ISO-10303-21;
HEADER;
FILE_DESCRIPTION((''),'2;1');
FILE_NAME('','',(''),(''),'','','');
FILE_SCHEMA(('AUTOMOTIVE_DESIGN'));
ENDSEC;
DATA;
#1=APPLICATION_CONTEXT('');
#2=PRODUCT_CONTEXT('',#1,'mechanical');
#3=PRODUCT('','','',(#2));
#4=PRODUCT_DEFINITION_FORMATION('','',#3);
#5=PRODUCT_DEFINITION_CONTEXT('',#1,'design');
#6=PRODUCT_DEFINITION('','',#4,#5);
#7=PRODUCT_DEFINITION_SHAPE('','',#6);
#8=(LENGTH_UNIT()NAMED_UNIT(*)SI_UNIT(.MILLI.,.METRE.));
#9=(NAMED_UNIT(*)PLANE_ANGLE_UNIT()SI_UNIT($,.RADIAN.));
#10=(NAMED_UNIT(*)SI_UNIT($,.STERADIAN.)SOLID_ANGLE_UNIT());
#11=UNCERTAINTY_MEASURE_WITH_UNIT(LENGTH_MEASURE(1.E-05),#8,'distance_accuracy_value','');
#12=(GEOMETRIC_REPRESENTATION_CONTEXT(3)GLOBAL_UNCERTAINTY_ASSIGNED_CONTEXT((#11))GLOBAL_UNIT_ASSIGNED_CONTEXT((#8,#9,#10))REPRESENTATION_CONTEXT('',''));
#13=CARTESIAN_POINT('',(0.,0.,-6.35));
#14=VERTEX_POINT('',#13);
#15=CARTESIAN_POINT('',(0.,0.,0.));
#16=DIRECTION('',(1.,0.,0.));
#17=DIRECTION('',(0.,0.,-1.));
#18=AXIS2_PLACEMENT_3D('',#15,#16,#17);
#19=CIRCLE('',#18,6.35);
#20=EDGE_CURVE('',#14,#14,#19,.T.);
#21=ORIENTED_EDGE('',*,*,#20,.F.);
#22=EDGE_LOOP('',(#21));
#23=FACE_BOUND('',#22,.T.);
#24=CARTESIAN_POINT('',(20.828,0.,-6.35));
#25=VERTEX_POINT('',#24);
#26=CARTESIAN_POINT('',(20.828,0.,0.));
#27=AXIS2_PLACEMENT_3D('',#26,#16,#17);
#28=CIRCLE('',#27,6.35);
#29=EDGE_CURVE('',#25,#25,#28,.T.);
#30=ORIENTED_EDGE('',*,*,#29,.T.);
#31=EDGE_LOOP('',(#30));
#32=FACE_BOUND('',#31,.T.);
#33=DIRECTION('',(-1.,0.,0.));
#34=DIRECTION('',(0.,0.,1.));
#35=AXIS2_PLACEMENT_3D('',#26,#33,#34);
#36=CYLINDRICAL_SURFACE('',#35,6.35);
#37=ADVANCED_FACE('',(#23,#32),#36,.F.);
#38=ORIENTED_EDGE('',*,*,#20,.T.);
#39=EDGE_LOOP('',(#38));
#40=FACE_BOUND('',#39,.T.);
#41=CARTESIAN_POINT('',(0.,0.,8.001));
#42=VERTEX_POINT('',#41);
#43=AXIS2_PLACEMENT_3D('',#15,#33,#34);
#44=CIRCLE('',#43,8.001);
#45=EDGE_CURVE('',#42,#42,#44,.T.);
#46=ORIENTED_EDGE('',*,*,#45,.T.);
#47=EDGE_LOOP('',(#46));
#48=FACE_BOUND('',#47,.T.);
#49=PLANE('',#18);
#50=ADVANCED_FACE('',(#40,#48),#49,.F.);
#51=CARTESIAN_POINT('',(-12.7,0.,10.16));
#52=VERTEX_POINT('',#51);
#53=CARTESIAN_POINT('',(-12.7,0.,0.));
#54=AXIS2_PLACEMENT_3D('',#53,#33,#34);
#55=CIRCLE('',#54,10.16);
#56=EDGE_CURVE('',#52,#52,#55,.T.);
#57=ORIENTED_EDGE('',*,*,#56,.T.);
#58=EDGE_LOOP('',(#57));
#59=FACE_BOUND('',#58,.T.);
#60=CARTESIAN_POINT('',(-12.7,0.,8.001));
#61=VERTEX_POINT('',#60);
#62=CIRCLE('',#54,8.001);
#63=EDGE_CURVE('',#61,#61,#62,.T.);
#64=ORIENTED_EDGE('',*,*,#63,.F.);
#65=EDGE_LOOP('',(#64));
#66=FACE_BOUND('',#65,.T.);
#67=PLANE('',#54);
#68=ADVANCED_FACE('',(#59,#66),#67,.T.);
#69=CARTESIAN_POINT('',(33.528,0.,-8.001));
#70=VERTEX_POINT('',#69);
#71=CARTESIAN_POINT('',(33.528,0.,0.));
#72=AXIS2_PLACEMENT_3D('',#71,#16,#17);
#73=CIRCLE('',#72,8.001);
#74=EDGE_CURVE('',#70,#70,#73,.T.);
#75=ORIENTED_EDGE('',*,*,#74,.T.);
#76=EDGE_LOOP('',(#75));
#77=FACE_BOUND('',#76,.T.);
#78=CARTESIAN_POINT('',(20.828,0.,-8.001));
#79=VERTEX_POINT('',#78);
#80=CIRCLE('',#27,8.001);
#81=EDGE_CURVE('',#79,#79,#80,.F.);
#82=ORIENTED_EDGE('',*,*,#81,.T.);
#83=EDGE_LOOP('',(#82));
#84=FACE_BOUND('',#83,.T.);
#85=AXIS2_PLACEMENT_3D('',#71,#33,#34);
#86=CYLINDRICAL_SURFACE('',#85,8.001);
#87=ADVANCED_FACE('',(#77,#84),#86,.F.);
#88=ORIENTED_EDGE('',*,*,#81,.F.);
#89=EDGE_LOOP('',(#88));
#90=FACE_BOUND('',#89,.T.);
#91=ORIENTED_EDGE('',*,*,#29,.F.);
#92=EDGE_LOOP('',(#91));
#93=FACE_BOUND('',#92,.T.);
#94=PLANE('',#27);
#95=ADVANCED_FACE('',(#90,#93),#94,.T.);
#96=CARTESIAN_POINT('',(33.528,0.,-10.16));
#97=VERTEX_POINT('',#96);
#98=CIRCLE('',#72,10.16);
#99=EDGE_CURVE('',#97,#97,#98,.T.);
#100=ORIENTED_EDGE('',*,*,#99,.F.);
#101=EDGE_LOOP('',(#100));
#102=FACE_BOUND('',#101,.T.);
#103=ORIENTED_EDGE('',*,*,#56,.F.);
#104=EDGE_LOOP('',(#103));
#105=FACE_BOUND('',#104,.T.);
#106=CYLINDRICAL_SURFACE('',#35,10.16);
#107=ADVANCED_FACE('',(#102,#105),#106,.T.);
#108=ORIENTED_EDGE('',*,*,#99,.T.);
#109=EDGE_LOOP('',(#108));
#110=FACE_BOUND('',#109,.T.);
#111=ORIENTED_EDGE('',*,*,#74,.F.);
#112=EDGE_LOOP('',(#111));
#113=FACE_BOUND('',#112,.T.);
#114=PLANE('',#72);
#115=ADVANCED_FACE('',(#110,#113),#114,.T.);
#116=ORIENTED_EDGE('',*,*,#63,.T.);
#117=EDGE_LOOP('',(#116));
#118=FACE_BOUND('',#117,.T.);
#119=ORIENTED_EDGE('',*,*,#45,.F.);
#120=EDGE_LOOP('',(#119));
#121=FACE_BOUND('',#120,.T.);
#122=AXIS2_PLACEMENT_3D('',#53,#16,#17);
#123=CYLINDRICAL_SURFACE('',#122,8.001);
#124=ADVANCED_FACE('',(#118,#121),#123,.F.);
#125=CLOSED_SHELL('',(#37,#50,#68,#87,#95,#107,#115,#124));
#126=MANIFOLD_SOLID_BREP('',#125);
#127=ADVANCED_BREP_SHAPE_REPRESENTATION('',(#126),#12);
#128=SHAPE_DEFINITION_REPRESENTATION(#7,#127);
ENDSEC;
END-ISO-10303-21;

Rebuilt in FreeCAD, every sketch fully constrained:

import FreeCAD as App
import Part
import Sketcher
Q = App.Units.Quantity

doc = App.newDocument("Part")
body = doc.addObject("PartDesign::Body", "Body")

sketch1 = doc.addObject("Sketcher::SketchObject", "Sketch")
body.addObject(sketch1)
sketch1.AttachmentSupport = (doc.YZ_Plane, [""])
sketch1.MapMode = "FlatFace"
sketch1.addGeometry([
    Part.Circle(App.Vector(0, 0, 0), App.Vector(0, 0, 1), 10.16),
    Part.Circle(App.Vector(0, 0, 0), App.Vector(0, 0, 1), 6.35),
], False)
sketch1.addConstraint([
    Sketcher.Constraint("Coincident", 0, 3, -1, 1),
    Sketcher.Constraint("Coincident", 1, 3, -1, 1),
    Sketcher.Constraint("Diameter", 0, Q("0.8 in")),
    Sketcher.Constraint("Diameter", 1, Q("0.5 in")),
])
pad1 = doc.addObject("PartDesign::Pad", "Pad")
body.addObject(pad1)
pad1.Profile = sketch1
pad1.Length = Q("0.82 in")

sketch2 = doc.addObject("Sketcher::SketchObject", "Sketch001")
body.addObject(sketch2)
sketch2.AttachmentSupport = (doc.YZ_Plane, [""])
sketch2.MapMode = "FlatFace"
sketch2.AttachmentOffset = App.Placement(App.Vector(0, 0, -0.5 * 25.4), App.Rotation())
sketch2.addGeometry([
    Part.Circle(App.Vector(0, 0, 0), App.Vector(0, 0, 1), 10.16),
    Part.Circle(App.Vector(0, 0, 0), App.Vector(0, 0, 1), 8.001),
], False)
sketch2.addConstraint([
    Sketcher.Constraint("Coincident", 0, 3, -1, 1),
    Sketcher.Constraint("Coincident", 1, 3, -1, 1),
    Sketcher.Constraint("Diameter", 0, Q("0.8 in")),
    Sketcher.Constraint("Diameter", 1, Q("0.63 in")),
])
pad2 = doc.addObject("PartDesign::Pad", "Pad001")
body.addObject(pad2)
pad2.Profile = sketch2
pad2.Length = Q("0.5 in")

sketch3 = doc.addObject("Sketcher::SketchObject", "Sketch002")
body.addObject(sketch3)
sketch3.AttachmentSupport = (doc.YZ_Plane, [""])
sketch3.MapMode = "FlatFace"
sketch3.AttachmentOffset = App.Placement(App.Vector(0, 0, 0.82 * 25.4), App.Rotation())
sketch3.addGeometry([
    Part.Circle(App.Vector(0, 0, 0), App.Vector(0, 0, 1), 10.16),
    Part.Circle(App.Vector(0, 0, 0), App.Vector(0, 0, 1), 8.001),
], False)
sketch3.addConstraint([
    Sketcher.Constraint("Coincident", 0, 3, -1, 1),
    Sketcher.Constraint("Coincident", 1, 3, -1, 1),
    Sketcher.Constraint("Diameter", 0, Q("0.8 in")),
    Sketcher.Constraint("Diameter", 1, Q("0.63 in")),
])
pad3 = doc.addObject("PartDesign::Pad", "Pad002")
body.addObject(pad3)
pad3.Profile = sketch3
pad3.Length = Q("0.5 in")

doc.recompute()
